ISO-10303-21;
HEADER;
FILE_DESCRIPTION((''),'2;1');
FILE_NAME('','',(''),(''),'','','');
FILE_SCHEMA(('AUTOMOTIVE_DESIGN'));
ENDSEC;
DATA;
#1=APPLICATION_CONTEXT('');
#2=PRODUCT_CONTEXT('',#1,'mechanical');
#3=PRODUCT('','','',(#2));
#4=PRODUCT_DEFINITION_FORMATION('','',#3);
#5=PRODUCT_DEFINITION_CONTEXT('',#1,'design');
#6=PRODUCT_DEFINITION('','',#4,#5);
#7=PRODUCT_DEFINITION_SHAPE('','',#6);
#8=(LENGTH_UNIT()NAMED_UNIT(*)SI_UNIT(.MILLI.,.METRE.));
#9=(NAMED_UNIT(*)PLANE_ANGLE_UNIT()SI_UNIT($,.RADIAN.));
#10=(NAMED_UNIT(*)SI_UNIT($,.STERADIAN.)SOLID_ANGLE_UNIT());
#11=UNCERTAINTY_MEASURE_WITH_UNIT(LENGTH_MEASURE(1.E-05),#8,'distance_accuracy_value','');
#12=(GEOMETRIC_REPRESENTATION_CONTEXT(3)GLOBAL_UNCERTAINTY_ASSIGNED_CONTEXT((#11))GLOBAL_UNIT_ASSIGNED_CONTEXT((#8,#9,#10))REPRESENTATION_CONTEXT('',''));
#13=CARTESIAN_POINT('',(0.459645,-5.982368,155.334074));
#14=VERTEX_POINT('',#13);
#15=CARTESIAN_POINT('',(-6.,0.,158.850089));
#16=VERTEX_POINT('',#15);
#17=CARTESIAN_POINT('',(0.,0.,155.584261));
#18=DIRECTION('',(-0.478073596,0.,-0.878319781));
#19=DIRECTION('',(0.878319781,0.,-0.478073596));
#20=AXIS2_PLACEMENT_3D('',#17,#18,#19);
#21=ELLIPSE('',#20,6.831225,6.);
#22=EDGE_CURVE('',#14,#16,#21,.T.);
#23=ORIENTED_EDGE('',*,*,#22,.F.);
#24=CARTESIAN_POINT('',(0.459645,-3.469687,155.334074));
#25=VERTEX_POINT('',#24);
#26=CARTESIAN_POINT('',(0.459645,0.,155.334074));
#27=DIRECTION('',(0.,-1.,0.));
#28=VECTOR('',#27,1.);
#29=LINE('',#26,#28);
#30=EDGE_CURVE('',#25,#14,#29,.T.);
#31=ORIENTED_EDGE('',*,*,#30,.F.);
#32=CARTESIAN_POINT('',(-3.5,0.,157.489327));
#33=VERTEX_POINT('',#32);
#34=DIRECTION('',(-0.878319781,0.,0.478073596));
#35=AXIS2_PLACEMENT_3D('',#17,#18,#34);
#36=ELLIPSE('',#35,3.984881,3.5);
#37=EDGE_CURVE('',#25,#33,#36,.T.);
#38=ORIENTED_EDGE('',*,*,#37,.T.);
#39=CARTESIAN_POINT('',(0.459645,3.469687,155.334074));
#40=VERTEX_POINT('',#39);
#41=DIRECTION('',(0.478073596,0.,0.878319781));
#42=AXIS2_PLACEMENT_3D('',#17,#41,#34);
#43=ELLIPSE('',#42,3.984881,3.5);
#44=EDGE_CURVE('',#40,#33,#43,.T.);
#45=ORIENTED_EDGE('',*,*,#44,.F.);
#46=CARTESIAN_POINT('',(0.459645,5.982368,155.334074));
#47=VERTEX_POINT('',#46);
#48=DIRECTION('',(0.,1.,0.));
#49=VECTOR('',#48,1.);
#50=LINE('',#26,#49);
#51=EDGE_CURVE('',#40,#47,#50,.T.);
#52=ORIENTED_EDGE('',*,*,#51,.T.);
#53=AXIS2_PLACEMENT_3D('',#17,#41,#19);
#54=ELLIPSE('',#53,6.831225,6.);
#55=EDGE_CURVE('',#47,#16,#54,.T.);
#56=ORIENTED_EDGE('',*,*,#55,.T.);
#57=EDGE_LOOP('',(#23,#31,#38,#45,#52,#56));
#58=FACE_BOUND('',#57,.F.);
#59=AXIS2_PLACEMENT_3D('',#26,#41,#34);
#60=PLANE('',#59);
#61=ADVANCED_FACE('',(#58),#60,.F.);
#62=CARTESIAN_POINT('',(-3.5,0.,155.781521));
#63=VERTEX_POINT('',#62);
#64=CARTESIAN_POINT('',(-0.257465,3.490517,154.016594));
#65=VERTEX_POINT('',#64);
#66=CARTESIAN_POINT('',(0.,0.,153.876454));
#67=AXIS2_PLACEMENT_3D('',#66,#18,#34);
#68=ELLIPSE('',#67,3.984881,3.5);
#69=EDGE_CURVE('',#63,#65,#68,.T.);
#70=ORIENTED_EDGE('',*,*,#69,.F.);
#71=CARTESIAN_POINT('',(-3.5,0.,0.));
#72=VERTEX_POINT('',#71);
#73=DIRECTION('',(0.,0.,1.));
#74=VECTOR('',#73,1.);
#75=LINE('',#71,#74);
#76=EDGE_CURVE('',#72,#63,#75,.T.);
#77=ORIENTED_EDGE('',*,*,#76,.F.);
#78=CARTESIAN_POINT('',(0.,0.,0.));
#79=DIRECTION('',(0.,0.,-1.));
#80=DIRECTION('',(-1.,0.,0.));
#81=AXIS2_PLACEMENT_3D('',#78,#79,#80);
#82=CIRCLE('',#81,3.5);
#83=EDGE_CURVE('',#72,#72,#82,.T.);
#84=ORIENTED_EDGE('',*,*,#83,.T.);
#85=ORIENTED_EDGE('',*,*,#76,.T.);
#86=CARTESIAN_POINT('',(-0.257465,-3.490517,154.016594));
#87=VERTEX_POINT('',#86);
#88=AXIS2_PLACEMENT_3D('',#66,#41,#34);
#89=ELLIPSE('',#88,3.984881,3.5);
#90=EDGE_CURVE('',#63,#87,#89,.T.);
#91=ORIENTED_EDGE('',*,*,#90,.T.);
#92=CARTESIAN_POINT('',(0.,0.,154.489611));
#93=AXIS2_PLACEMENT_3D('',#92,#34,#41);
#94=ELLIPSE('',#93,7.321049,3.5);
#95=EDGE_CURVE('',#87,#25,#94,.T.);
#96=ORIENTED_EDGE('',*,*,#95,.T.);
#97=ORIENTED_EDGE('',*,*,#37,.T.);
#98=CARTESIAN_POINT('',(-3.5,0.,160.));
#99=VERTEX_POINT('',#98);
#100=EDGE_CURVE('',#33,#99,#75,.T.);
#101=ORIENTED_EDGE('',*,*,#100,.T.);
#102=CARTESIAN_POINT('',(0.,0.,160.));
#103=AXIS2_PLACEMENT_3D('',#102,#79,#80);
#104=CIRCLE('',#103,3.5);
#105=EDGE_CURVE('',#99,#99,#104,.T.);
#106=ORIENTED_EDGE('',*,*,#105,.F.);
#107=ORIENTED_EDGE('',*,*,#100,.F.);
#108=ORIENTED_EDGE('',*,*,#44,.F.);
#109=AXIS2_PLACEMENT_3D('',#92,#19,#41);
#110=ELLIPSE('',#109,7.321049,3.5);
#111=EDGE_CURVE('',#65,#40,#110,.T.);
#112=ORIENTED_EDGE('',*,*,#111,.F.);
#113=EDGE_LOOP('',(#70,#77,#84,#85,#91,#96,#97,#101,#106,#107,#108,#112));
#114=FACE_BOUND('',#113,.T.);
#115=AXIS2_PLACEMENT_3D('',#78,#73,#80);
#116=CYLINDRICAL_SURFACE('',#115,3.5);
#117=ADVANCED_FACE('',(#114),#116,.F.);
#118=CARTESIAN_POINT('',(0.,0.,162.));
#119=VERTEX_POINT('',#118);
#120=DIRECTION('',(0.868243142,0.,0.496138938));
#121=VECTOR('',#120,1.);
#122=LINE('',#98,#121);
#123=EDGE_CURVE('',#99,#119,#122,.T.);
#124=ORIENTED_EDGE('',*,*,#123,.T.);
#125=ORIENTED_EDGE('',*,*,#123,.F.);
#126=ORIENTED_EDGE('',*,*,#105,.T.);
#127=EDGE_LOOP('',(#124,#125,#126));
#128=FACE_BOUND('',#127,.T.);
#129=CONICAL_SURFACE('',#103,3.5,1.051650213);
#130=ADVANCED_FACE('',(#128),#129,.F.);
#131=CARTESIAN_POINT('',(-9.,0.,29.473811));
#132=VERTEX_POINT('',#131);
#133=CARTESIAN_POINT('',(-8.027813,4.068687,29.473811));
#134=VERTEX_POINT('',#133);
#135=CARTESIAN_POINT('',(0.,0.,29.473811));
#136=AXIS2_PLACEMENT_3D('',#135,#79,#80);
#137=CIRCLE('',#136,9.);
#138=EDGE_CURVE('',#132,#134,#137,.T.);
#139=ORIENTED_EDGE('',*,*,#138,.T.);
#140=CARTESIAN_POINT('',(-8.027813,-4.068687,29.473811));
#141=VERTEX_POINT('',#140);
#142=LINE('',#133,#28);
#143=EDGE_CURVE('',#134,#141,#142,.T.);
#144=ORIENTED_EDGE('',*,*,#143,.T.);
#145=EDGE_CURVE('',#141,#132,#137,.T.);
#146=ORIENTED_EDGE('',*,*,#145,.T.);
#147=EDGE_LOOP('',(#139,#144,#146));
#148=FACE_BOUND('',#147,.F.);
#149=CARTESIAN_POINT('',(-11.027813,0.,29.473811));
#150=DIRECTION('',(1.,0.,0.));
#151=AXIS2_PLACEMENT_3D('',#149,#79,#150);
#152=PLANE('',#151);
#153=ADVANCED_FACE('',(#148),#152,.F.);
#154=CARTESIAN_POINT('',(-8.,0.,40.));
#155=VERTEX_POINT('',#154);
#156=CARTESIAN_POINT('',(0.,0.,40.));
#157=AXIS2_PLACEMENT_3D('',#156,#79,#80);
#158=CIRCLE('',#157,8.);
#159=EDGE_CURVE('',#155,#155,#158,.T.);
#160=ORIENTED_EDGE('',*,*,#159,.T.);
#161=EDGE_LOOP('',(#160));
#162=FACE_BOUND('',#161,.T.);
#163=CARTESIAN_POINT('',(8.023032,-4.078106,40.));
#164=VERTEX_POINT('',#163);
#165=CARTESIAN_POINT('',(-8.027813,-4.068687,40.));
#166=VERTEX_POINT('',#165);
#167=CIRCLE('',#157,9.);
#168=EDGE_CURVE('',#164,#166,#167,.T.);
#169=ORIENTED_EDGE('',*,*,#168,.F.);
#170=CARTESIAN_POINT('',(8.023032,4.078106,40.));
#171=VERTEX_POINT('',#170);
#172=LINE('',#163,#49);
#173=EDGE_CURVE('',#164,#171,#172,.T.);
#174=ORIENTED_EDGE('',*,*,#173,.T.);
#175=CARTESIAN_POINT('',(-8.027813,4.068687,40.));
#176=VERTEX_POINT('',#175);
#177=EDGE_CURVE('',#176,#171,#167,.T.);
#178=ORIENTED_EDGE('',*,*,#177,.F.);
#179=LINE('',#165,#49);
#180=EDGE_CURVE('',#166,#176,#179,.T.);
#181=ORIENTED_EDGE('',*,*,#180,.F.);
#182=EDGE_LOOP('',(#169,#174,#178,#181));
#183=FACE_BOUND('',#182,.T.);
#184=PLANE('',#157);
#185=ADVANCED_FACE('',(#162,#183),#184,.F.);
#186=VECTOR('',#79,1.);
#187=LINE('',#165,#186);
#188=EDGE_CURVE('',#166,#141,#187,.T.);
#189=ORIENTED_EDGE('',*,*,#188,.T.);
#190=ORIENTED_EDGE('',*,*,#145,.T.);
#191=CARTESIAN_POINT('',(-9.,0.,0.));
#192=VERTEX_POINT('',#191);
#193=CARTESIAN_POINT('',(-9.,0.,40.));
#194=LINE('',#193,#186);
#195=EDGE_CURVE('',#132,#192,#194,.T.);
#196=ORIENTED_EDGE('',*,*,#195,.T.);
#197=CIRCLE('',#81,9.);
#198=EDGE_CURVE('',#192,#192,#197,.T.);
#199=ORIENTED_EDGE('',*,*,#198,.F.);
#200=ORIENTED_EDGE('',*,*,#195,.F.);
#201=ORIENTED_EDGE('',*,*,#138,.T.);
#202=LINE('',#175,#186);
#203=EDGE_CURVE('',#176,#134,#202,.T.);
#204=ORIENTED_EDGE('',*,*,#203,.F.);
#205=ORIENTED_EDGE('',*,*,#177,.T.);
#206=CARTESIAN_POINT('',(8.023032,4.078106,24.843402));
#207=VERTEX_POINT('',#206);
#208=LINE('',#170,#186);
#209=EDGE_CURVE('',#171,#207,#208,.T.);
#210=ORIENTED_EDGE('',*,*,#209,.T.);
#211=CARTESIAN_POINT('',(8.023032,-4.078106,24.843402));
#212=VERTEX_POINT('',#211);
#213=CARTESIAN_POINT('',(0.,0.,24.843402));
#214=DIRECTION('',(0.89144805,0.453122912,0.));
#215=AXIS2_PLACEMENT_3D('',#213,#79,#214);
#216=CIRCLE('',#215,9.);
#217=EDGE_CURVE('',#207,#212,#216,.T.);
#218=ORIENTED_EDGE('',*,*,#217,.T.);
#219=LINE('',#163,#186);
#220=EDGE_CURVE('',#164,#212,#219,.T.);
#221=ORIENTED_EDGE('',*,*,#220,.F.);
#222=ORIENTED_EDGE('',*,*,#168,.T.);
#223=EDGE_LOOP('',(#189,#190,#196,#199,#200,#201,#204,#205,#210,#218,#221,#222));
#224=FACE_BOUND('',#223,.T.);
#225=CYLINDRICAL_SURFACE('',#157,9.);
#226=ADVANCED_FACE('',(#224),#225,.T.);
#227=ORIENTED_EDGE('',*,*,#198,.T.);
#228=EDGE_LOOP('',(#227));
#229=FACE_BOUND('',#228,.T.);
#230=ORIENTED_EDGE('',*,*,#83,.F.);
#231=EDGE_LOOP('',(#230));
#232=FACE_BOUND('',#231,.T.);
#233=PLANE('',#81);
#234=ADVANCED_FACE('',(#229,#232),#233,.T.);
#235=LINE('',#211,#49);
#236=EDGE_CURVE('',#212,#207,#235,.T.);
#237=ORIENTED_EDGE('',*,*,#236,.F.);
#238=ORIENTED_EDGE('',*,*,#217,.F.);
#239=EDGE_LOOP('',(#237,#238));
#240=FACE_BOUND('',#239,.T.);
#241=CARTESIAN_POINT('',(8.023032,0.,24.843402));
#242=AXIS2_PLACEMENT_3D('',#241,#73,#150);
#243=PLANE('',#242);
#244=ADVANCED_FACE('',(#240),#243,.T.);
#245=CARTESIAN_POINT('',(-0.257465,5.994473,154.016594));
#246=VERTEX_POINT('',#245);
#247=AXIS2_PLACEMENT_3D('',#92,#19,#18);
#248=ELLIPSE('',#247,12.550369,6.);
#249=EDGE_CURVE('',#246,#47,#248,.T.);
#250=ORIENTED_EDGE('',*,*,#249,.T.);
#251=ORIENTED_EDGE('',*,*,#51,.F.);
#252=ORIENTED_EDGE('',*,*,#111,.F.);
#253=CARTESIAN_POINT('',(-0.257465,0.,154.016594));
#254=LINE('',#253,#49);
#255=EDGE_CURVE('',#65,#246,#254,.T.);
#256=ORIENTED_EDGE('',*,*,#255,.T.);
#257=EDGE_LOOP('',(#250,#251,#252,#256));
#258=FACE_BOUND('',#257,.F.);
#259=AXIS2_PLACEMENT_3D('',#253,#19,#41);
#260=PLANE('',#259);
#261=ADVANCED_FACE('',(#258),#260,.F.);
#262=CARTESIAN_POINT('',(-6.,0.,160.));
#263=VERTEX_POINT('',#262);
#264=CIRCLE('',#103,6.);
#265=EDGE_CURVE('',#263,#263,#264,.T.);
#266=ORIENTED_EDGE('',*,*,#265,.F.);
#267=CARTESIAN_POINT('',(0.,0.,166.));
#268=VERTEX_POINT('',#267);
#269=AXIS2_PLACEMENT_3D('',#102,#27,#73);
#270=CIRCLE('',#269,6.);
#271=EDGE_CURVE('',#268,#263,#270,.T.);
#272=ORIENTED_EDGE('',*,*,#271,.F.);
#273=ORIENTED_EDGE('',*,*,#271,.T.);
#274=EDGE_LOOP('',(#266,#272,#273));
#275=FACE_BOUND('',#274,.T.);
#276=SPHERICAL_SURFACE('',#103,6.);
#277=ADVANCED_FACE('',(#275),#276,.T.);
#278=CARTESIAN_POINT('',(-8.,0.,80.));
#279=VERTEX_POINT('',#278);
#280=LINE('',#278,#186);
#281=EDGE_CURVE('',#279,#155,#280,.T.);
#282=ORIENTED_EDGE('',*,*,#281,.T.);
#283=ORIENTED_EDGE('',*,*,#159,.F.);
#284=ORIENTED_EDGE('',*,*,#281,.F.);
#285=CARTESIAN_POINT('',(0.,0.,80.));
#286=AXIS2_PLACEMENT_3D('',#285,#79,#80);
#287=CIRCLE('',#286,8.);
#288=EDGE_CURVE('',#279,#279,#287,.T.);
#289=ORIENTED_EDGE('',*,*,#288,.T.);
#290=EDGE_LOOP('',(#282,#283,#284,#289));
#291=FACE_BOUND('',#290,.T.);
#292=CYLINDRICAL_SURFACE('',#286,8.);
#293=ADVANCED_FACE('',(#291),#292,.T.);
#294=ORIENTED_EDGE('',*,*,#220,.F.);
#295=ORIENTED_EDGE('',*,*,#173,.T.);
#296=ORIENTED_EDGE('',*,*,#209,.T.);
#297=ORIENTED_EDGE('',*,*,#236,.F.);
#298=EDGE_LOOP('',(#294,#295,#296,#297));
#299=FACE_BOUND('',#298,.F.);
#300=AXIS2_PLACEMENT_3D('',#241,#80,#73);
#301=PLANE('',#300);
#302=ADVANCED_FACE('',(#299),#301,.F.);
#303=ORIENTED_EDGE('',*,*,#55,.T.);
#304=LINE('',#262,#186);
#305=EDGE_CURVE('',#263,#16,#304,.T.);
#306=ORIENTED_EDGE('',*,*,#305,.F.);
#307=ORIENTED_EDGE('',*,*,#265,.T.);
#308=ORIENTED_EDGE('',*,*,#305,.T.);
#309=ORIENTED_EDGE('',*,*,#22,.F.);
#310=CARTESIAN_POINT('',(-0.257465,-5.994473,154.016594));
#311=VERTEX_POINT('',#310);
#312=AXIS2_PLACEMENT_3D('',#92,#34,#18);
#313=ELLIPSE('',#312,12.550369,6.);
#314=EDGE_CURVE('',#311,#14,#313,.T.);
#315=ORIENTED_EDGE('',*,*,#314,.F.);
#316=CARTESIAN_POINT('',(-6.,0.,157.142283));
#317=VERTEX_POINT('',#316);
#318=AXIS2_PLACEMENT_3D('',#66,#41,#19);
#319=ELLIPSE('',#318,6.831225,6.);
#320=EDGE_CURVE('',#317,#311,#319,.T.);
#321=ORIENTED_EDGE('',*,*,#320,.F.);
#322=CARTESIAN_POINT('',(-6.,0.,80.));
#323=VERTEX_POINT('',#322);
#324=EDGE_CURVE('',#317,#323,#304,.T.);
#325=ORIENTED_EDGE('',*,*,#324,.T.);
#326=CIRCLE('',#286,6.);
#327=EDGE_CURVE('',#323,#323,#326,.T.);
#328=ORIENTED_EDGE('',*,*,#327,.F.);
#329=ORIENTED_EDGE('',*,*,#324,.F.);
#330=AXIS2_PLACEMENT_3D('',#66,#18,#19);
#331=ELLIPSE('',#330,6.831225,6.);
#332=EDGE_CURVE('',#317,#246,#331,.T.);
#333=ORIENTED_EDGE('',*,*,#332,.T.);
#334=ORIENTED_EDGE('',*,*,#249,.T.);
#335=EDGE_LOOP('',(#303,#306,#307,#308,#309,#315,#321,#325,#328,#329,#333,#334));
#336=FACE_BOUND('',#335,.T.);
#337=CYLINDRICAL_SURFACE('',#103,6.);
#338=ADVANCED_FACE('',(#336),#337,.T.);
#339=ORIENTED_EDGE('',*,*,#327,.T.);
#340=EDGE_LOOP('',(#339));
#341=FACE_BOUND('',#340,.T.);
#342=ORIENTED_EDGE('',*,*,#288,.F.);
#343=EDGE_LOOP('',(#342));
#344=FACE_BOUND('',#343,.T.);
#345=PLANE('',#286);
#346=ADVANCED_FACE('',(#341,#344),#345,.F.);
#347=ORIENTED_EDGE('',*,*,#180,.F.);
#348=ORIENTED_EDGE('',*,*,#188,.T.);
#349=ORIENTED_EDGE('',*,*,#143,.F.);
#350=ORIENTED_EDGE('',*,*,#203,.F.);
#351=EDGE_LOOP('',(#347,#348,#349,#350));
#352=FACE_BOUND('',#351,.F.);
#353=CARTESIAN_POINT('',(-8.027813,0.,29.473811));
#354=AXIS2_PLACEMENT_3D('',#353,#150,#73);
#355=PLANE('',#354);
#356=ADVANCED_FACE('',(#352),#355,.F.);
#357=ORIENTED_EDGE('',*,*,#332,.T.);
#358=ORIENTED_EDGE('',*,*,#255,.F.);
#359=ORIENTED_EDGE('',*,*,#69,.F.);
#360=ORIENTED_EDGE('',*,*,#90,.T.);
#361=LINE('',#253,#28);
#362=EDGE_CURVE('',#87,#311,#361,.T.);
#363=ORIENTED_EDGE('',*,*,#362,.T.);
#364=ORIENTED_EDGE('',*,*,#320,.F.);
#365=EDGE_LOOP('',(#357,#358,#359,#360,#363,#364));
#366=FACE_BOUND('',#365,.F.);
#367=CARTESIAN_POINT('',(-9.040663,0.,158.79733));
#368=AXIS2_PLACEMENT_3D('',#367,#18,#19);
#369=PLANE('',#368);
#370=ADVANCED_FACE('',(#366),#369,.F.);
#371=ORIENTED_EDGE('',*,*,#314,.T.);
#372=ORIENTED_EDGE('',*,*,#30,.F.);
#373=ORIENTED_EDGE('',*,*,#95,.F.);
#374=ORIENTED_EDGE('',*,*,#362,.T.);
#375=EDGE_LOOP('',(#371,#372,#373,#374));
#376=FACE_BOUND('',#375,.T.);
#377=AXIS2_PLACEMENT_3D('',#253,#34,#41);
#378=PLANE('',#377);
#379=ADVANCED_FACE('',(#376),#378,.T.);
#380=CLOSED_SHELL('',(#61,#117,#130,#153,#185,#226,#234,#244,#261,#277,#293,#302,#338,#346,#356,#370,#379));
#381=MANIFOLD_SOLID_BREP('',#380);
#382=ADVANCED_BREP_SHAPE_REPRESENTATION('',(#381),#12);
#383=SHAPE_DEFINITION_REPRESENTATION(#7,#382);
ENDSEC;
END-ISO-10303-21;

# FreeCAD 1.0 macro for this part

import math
import FreeCAD as App
import Part
import Sketcher

doc = App.newDocument("Part")
body = doc.addObject("PartDesign::Body", "Body")

sketch1 = body.newObject("Sketcher::SketchObject", "Sketch")
sketch1.AttachmentSupport = (doc.getObject("XZ_Plane"), [""])
sketch1.MapMode = "FlatFace"
sketch1.addGeometry([
    Part.LineSegment(App.Vector(-9, 0, 0), App.Vector(-3.5, 0, 0)),
    Part.LineSegment(App.Vector(-3.5, 0, 0), App.Vector(-3.5, 160, 0)),
    Part.LineSegment(App.Vector(-3.5, 160, 0), App.Vector(0, 162, 0)),
    Part.LineSegment(App.Vector(0, 162, 0), App.Vector(0, 166, 0)),
    Part.ArcOfCircle(Part.Circle(App.Vector(0, 160, 0), App.Vector(0, 0, 1), 6), math.radians(90), math.radians(180)),
    Part.LineSegment(App.Vector(-6, 160, 0), App.Vector(-6, 80, 0)),
    Part.LineSegment(App.Vector(-6, 80, 0), App.Vector(-8, 80, 0)),
    Part.LineSegment(App.Vector(-8, 80, 0), App.Vector(-8, 40, 0)),
    Part.LineSegment(App.Vector(-8, 40, 0), App.Vector(-9, 40, 0)),
    Part.LineSegment(App.Vector(-9, 40, 0), App.Vector(-9, 0, 0)),
], False)
sketch1.addConstraint([
    Sketcher.Constraint("Coincident", 0, 2, 1, 1),
    Sketcher.Constraint("Coincident", 1, 2, 2, 1),
    Sketcher.Constraint("Coincident", 2, 2, 3, 1),
    Sketcher.Constraint("Coincident", 3, 2, 4, 1),
    Sketcher.Constraint("Tangent", 4, 2, 5, 1),
    Sketcher.Constraint("Coincident", 5, 2, 6, 1),
    Sketcher.Constraint("Coincident", 6, 2, 7, 1),
    Sketcher.Constraint("Coincident", 7, 2, 8, 1),
    Sketcher.Constraint("Coincident", 8, 2, 9, 1),
    Sketcher.Constraint("Coincident", 9, 2, 0, 1),
    Sketcher.Constraint("Horizontal", 0),
    Sketcher.Constraint("Vertical", 1),
    Sketcher.Constraint("Vertical", 3),
    Sketcher.Constraint("Vertical", 5),
    Sketcher.Constraint("Horizontal", 6),
    Sketcher.Constraint("Vertical", 7),
    Sketcher.Constraint("Horizontal", 8),
    Sketcher.Constraint("Vertical", 9),
    Sketcher.Constraint("PointOnObject", 4, 3, -2),
    Sketcher.Constraint("PointOnObject", 0, 2, -1),
    Sketcher.Constraint("PointOnObject", 2, 2, -2),
    Sketcher.Constraint("Horizontal", 4, 3, 1, 2),
    Sketcher.Constraint("Equal", 7, 9),
    Sketcher.Constraint("Radius", 4, 6.0),
    Sketcher.Constraint("DistanceX", 6, 2, 6, 1, 2.0),
    Sketcher.Constraint("DistanceX", 8, 2, 8, 1, 1.0),
    Sketcher.Constraint("DistanceY", 1, 1, 1, 2, 160.0),
    Sketcher.Constraint("DistanceY", 3, 1, 3, 2, 4.0),
    Sketcher.Constraint("DistanceY", 5, 2, 5, 1, 80.0),
    Sketcher.Constraint("DistanceX", 0, 1, 0, 2, 5.5),
])
revolution = body.newObject("PartDesign::Revolution", "Revolution")
revolution.Profile = sketch1
revolution.ReferenceAxis = (sketch1, ["V_Axis"])
revolution.Angle = 360

sketch2 = body.newObject("Sketcher::SketchObject", "Sketch001")
sketch2.AttachmentSupport = (doc.getObject("XZ_Plane"), [""])
sketch2.MapMode = "FlatFace"
sketch2.addGeometry([
    Part.LineSegment(App.Vector(-11.027813, 40.473811, 0), App.Vector(-11.027813, 29.473811, 0)),
    Part.LineSegment(App.Vector(-11.027813, 29.473811, 0), App.Vector(-8.027813, 29.473811, 0)),
    Part.LineSegment(App.Vector(-8.027813, 29.473811, 0), App.Vector(-8.027813, 40.473811, 0)),
    Part.LineSegment(App.Vector(-8.027813, 40.473811, 0), App.Vector(-11.027813, 40.473811, 0)),
], False)
sketch2.addConstraint([
    Sketcher.Constraint("Coincident", 0, 2, 1, 1),
    Sketcher.Constraint("Coincident", 1, 2, 2, 1),
    Sketcher.Constraint("Coincident", 2, 2, 3, 1),
    Sketcher.Constraint("Coincident", 3, 2, 0, 1),
    Sketcher.Constraint("Vertical", 0),
    Sketcher.Constraint("Horizontal", 1),
    Sketcher.Constraint("Vertical", 2),
    Sketcher.Constraint("Horizontal", 3),
    Sketcher.Constraint("DistanceX", 1, 1, 1, 2, 3.0),
    Sketcher.Constraint("DistanceY", 0, 2, 0, 1, 11.0),
    Sketcher.Constraint("DistanceY", -1, 1, 0, 2, 29.473811),
    Sketcher.Constraint("DistanceX", 0, 2, -1, 1, 11.027813),
])
pocket1 = body.newObject("PartDesign::Pocket", "Pocket")
pocket1.Profile = sketch2
pocket1.Type = "ThroughAll"
pocket1.Midplane = True

sketch3 = body.newObject("Sketcher::SketchObject", "Sketch002")
sketch3.AttachmentSupport = (doc.getObject("XZ_Plane"), [""])
sketch3.MapMode = "FlatFace"
sketch3.addGeometry([
    Part.LineSegment(App.Vector(8.023032, 40.843402, 0), App.Vector(8.023032, 24.843402, 0)),
    Part.LineSegment(App.Vector(8.023032, 24.843402, 0), App.Vector(11.023032, 24.843402, 0)),
    Part.LineSegment(App.Vector(11.023032, 24.843402, 0), App.Vector(11.023032, 40.843402, 0)),
    Part.LineSegment(App.Vector(11.023032, 40.843402, 0), App.Vector(8.023032, 40.843402, 0)),
], False)
sketch3.addConstraint([
    Sketcher.Constraint("Coincident", 0, 2, 1, 1),
    Sketcher.Constraint("Coincident", 1, 2, 2, 1),
    Sketcher.Constraint("Coincident", 2, 2, 3, 1),
    Sketcher.Constraint("Coincident", 3, 2, 0, 1),
    Sketcher.Constraint("Vertical", 0),
    Sketcher.Constraint("Horizontal", 1),
    Sketcher.Constraint("Vertical", 2),
    Sketcher.Constraint("Horizontal", 3),
    Sketcher.Constraint("DistanceX", 1, 1, 1, 2, 3.0),
    Sketcher.Constraint("DistanceY", 0, 2, 0, 1, 16.0),
    Sketcher.Constraint("DistanceX", -1, 1, 0, 2, 8.023032),
    Sketcher.Constraint("DistanceY", -1, 1, 0, 2, 24.843402),
])
pocket2 = body.newObject("PartDesign::Pocket", "Pocket001")
pocket2.Profile = sketch3
pocket2.Type = "ThroughAll"
pocket2.Midplane = True

sketch4 = body.newObject("Sketcher::SketchObject", "Sketch003")
sketch4.AttachmentSupport = (doc.getObject("XZ_Plane"), [""])
sketch4.MapMode = "FlatFace"
sketch4.addGeometry([
    Part.LineSegment(App.Vector(-8.323553, 160.11481, 0), App.Vector(-9.040663, 158.79733, 0)),
    Part.LineSegment(App.Vector(-9.040663, 158.79733, 0), App.Vector(-0.257465, 154.016594, 0)),
    Part.LineSegment(App.Vector(-0.257465, 154.016594, 0), App.Vector(0.459645, 155.334074, 0)),
    Part.LineSegment(App.Vector(0.459645, 155.334074, 0), App.Vector(-8.323553, 160.11481, 0)),
], False)
sketch4.addConstraint([
    Sketcher.Constraint("Coincident", 0, 2, 1, 1),
    Sketcher.Constraint("Coincident", 1, 2, 2, 1),
    Sketcher.Constraint("Coincident", 2, 2, 3, 1),
    Sketcher.Constraint("Coincident", 3, 2, 0, 1),
    Sketcher.Constraint("Perpendicular", 0, 1),
    Sketcher.Constraint("Perpendicular", 1, 2),
    Sketcher.Constraint("Perpendicular", 2, 3),
    Sketcher.Constraint("Distance", 1, 10.0),
    Sketcher.Constraint("Distance", 0, 1.5),
    Sketcher.Constraint("DistanceY", -1, 1, 0, 2, 158.79733),
    Sketcher.Constraint("DistanceY", -1, 1, 3, 2, 160.11481),
    Sketcher.Constraint("DistanceX", 0, 2, -1, 1, 9.040663),
])
pocket3 = body.newObject("PartDesign::Pocket", "Pocket002")
pocket3.Profile = sketch4
pocket3.Type = "ThroughAll"
pocket3.Midplane = True

doc.recompute()
